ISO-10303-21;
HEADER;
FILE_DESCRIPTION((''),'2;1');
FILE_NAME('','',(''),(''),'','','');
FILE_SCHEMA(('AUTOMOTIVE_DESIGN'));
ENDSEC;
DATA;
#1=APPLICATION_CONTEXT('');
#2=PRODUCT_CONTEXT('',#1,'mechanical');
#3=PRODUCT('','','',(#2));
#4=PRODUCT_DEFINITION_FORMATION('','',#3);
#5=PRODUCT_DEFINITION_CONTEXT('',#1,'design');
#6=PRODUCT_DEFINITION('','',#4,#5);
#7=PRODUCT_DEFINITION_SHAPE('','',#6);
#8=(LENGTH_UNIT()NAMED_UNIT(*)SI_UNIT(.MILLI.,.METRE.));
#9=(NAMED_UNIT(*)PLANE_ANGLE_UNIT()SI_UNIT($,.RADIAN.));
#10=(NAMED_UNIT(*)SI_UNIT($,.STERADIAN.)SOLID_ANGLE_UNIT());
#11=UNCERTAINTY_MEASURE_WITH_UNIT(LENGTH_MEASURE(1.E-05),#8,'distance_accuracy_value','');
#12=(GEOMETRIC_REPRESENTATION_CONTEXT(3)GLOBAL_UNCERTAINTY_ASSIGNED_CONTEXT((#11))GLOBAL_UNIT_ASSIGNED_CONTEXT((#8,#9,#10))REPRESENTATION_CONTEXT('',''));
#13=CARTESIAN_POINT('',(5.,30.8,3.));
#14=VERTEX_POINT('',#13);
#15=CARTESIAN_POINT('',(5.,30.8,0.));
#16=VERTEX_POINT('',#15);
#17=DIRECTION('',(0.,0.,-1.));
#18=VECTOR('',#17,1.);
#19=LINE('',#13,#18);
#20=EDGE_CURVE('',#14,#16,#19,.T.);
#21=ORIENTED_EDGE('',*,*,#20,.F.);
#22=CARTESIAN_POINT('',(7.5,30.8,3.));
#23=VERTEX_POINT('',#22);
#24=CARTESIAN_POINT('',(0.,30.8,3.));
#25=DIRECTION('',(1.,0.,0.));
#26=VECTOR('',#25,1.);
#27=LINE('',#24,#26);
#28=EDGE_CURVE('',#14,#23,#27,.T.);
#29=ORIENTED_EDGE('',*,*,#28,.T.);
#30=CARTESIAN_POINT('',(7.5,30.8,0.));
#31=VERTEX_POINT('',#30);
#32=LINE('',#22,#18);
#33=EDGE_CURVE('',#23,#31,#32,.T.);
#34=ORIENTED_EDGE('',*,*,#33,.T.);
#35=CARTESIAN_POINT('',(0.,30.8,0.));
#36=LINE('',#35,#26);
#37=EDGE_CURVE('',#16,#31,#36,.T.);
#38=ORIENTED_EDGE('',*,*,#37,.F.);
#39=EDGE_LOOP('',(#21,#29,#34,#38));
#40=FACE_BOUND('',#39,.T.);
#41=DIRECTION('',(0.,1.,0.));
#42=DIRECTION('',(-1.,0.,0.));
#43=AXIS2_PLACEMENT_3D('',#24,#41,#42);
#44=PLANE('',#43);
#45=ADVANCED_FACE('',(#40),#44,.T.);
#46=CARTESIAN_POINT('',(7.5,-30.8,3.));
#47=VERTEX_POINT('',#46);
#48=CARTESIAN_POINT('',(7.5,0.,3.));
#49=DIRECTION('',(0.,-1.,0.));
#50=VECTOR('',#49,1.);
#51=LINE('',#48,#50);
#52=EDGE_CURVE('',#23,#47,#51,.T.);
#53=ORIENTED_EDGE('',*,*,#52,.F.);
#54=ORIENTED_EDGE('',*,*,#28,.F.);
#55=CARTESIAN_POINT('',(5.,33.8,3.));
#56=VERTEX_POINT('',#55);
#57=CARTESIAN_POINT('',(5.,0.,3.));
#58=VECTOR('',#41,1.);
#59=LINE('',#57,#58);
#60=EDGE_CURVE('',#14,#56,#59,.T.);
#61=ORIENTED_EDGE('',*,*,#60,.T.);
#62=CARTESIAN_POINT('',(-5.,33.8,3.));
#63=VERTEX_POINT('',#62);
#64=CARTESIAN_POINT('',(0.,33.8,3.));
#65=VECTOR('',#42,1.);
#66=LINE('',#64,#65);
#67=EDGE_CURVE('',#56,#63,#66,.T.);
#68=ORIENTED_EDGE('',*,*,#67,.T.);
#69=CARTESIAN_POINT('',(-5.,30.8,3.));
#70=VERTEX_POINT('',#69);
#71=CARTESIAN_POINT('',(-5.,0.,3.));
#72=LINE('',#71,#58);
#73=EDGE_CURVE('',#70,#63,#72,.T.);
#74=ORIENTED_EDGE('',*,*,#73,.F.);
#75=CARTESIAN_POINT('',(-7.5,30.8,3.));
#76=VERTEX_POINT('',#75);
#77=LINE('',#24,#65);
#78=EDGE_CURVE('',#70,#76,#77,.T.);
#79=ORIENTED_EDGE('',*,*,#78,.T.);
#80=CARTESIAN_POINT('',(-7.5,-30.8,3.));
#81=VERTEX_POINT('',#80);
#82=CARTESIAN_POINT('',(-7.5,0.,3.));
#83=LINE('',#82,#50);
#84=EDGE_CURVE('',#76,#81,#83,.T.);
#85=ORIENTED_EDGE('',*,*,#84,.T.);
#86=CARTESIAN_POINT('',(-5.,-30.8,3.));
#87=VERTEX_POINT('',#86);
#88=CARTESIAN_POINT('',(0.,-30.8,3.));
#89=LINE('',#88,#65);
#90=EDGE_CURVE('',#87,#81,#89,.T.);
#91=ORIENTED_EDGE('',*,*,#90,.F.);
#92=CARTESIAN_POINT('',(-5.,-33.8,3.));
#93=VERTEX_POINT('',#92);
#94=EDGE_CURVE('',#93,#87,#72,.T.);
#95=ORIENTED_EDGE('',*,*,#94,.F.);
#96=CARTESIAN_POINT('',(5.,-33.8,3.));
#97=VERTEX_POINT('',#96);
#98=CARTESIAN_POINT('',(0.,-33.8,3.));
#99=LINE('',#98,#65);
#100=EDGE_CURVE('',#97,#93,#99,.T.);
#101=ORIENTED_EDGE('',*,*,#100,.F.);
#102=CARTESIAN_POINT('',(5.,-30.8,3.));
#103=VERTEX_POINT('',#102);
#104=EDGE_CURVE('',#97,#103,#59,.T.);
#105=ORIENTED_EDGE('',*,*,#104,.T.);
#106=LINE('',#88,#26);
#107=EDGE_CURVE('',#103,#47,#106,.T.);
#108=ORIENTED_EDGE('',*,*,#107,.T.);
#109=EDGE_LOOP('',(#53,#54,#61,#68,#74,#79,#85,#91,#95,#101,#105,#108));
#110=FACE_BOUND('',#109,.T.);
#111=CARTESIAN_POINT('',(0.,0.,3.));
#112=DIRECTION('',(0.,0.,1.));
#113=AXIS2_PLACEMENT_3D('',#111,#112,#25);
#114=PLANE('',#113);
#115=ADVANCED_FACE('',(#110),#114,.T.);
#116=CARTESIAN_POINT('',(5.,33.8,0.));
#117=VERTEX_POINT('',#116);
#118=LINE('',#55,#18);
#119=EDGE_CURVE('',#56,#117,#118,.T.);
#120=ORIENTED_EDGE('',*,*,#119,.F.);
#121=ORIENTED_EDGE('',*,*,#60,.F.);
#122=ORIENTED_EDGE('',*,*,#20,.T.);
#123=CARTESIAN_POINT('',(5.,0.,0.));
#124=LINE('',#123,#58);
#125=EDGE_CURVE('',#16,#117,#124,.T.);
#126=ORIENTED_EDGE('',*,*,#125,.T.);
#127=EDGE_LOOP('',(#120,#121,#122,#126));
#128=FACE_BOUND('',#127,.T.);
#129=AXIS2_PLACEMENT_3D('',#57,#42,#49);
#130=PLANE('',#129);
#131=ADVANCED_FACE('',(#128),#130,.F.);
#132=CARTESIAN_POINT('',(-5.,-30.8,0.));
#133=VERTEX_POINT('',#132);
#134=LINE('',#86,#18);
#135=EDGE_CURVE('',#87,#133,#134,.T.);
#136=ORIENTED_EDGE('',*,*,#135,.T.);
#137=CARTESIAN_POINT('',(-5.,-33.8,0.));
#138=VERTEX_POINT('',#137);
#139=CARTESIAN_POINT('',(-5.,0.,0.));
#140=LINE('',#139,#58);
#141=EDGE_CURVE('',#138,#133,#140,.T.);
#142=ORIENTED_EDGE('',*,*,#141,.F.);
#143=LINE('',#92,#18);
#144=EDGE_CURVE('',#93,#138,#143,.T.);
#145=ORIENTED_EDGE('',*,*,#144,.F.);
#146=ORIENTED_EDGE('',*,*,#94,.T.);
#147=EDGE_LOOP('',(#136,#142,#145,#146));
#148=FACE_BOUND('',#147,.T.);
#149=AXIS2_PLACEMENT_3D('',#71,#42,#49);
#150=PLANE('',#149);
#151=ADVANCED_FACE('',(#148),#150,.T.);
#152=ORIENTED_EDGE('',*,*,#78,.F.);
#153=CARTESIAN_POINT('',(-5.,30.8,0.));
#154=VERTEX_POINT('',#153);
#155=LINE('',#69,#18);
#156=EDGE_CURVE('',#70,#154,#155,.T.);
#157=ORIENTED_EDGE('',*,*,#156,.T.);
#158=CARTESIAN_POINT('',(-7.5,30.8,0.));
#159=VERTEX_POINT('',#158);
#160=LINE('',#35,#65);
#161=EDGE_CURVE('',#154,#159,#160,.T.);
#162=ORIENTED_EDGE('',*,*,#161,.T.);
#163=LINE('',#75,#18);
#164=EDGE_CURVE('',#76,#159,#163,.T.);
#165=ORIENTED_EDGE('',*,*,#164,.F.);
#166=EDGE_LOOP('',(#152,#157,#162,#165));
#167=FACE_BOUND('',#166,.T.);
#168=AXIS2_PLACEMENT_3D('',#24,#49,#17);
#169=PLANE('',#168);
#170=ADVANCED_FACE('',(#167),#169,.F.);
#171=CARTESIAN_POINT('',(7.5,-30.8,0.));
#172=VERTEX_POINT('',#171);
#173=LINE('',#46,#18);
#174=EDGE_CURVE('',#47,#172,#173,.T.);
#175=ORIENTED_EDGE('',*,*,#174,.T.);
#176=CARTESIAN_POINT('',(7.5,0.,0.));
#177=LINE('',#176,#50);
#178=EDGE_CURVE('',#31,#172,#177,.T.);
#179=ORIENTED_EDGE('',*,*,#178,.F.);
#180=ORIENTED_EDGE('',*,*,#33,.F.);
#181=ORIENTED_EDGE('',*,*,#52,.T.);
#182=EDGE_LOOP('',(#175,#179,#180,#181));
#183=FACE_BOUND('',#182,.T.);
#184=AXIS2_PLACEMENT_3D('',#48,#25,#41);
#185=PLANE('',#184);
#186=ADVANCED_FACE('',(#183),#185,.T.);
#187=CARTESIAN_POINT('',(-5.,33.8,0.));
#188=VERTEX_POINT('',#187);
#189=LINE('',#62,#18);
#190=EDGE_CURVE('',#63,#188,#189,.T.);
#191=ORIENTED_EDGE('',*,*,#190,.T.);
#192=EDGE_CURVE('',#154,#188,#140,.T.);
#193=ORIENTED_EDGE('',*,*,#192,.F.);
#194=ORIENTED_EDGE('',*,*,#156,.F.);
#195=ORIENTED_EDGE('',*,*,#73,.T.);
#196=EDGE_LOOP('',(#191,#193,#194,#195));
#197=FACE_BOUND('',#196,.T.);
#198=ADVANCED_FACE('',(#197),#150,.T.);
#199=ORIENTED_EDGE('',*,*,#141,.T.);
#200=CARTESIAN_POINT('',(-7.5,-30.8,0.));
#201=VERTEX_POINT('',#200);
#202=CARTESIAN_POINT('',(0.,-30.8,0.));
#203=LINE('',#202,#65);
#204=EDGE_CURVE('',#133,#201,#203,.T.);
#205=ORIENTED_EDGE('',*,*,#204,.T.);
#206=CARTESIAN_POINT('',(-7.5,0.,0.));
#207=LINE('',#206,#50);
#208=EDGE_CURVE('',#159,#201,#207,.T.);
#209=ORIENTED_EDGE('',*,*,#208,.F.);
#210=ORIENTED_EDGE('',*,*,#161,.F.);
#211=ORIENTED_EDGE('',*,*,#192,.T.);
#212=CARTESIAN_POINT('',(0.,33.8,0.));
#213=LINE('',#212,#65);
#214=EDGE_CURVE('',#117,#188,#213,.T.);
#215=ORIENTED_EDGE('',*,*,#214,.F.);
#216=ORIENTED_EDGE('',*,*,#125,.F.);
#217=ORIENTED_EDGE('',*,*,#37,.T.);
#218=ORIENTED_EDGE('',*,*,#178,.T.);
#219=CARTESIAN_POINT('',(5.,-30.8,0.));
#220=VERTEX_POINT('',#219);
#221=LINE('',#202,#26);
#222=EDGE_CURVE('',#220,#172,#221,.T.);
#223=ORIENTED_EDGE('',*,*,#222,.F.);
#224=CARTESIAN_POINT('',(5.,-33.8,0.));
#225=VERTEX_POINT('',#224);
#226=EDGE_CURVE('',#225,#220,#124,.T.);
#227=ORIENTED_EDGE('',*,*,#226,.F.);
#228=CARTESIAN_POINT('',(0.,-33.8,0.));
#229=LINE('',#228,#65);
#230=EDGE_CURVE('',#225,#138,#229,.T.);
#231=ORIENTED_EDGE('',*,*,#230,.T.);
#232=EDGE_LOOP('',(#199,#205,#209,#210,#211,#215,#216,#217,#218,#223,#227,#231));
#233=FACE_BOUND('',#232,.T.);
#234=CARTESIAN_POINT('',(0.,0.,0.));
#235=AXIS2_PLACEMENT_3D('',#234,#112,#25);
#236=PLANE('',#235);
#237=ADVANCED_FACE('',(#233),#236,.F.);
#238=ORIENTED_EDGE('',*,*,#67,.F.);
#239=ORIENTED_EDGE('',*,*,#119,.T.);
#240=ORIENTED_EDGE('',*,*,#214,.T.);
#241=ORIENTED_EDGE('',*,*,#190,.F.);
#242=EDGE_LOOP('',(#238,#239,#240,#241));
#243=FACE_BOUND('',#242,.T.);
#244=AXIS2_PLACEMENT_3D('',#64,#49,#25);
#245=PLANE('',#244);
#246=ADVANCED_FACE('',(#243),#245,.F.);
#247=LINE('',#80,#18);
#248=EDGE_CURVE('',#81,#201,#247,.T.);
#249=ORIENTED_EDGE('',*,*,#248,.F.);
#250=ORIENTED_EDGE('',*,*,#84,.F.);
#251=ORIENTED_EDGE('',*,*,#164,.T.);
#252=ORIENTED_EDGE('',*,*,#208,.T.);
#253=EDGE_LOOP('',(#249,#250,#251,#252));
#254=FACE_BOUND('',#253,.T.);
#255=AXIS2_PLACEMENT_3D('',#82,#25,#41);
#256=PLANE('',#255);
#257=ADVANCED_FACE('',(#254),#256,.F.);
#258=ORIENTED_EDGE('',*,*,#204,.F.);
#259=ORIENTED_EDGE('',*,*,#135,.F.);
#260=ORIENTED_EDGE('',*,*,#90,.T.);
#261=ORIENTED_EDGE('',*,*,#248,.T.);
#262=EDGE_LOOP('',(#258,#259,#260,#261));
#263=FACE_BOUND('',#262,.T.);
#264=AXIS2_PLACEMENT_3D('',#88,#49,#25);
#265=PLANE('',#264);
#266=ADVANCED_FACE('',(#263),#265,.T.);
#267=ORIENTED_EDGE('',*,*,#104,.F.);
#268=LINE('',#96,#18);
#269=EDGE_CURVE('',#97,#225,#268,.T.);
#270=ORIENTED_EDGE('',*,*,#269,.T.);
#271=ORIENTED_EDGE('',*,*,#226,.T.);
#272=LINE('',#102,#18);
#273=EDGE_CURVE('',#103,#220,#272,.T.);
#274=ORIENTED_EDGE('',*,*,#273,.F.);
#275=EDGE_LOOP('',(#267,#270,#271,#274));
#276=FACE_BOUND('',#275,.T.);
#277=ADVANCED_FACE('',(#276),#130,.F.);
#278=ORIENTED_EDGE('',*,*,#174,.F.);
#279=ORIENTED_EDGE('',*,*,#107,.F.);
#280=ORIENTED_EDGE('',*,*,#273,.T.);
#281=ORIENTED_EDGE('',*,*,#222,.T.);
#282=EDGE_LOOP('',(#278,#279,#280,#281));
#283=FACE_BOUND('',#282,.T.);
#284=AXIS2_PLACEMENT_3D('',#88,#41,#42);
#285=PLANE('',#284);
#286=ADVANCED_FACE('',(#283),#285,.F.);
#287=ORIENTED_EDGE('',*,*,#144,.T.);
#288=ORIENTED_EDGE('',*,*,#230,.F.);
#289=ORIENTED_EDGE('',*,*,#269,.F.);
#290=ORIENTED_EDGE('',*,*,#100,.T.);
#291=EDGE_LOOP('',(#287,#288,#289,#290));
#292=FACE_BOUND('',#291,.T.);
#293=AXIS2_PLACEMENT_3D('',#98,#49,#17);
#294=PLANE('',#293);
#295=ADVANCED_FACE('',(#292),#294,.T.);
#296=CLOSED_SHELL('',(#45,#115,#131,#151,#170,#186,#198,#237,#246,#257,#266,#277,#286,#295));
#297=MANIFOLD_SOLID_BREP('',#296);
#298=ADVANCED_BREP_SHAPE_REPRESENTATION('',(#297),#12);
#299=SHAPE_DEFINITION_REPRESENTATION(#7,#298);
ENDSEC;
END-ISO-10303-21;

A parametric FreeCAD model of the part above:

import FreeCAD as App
import Part
import Sketcher


def add_polygon(sketch, points):
    """Adds a closed chain of lines whose ends are joined by coincident constraints."""
    first, n = sketch.GeometryCount, len(points)
    for a, b in zip(points, points[1:] + points[:1]):
        sketch.addGeometry(Part.LineSegment(App.Vector(*a, 0), App.Vector(*b, 0)), False)
    for i in range(n):
        sketch.addConstraint(Sketcher.Constraint("Coincident", first + i, 2, first + (i + 1) % n, 1))

doc = App.newDocument("Part")
body = doc.addObject("PartDesign::Body", "Body")

sketch1 = doc.addObject("Sketcher::SketchObject", "Sketch")
body.addObject(sketch1)
sketch1.AttachmentSupport = (doc.XY_Plane, [""])
sketch1.MapMode = "FlatFace"
add_polygon(sketch1, [(-7.5, 30.8), (-7.5, -30.8), (-5, -30.8), (-5, -33.8), (5, -33.8), (5, -30.8), (7.5, -30.8), (7.5, 30.8), (5, 30.8), (5, 33.8), (-5, 33.8), (-5, 30.8)])
sketch1.addConstraint([
    Sketcher.Constraint("Vertical", 0),
    Sketcher.Constraint("Horizontal", 1),
    Sketcher.Constraint("Vertical", 2),
    Sketcher.Constraint("Horizontal", 3),
    Sketcher.Constraint("Vertical", 4),
    Sketcher.Constraint("Horizontal", 5),
    Sketcher.Constraint("Vertical", 6),
    Sketcher.Constraint("Horizontal", 7),
    Sketcher.Constraint("Vertical", 8),
    Sketcher.Constraint("Horizontal", 9),
    Sketcher.Constraint("Vertical", 10),
    Sketcher.Constraint("Horizontal", 11),
    Sketcher.Constraint("Symmetric", 0, 2, 6, 2, -1, 1),
    Sketcher.Constraint("Symmetric", 2, 2, 8, 2, -1, 1),
    Sketcher.Constraint("Symmetric", 4, 2, 10, 2, -1, 1),
    Sketcher.Constraint("Symmetric", 1, 2, 4, 2, -2),
    Sketcher.Constraint("DistanceX", 3, 1, 3, 2, 10.0),
    Sketcher.Constraint("DistanceY", 2, 2, 2, 1, 3.0),
    Sketcher.Constraint("DistanceX", 1, 1, 1, 2, 2.5),
    Sketcher.Constraint("DistanceY", 0, 2, 0, 1, 61.6),
])
pad1 = doc.addObject("PartDesign::Pad", "Pad")
body.addObject(pad1)
pad1.Profile = sketch1
pad1.Length = 3

doc.recompute()
